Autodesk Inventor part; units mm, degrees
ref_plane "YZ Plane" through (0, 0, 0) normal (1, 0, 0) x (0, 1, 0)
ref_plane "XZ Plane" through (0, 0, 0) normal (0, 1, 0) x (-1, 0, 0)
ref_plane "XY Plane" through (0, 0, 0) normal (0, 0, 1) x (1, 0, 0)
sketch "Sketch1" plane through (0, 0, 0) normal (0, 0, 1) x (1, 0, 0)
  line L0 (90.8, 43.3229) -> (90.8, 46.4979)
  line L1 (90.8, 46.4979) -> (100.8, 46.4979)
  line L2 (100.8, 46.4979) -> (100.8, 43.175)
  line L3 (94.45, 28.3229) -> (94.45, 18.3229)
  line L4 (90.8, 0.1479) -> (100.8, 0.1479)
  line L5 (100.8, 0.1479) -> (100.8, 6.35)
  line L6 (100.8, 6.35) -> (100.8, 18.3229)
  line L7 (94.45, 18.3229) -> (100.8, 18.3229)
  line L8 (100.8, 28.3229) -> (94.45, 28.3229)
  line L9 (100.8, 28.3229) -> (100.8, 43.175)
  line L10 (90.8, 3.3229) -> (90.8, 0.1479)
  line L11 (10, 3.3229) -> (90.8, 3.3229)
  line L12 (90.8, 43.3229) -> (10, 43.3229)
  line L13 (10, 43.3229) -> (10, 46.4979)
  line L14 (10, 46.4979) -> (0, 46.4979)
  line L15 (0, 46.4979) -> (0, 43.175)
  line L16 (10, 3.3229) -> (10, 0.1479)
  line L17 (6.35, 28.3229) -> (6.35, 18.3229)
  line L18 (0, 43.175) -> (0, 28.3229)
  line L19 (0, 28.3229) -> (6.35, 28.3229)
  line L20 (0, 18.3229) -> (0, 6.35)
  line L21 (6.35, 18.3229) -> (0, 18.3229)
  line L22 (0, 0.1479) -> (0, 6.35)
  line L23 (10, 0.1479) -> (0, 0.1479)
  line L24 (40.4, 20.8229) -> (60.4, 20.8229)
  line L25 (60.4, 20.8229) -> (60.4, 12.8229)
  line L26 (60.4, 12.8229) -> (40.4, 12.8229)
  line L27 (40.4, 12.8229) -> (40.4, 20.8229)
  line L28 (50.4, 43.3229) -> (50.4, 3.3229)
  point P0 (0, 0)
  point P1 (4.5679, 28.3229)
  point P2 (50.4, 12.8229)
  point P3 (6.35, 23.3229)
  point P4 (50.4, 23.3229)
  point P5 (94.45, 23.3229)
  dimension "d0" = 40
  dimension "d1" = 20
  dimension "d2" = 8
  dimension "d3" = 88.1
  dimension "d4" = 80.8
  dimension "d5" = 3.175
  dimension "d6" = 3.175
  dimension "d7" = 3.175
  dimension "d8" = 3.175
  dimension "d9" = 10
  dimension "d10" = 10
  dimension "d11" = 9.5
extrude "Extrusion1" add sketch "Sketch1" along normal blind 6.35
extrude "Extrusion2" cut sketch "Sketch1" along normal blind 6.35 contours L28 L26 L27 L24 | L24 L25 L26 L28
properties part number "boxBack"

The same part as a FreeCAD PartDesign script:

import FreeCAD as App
import Part
import Sketcher
Q = App.Units.Quantity


def add_polygon(sketch, points):
    """Adds a closed chain of lines whose ends are joined by coincident constraints."""
    first, n = sketch.GeometryCount, len(points)
    for a, b in zip(points, points[1:] + points[:1]):
        sketch.addGeometry(Part.LineSegment(App.Vector(*a, 0), App.Vector(*b, 0)), False)
    for i in range(n):
        sketch.addConstraint(Sketcher.Constraint("Coincident", first + i, 2, first + (i + 1) % n, 1))

doc = App.newDocument("Part")
body = doc.addObject("PartDesign::Body", "Body")

sketch1 = body.newObject("Sketcher::SketchObject", "Sketch")
sketch1.AttachmentSupport = (doc.getObject("XY_Plane"), [""])
sketch1.MapMode = "FlatFace"
add_polygon(sketch1, [(90.8, 46.4979), (90.8, 43.3229), (10, 43.3229), (10, 46.4979), (0, 46.4979), (0, 28.3229), (6.35, 28.3229), (6.35, 18.3229), (0, 18.3229), (0, 0.1479), (10, 0.1479), (10, 3.3229), (90.8, 3.3229), (90.8, 0.1479), (100.8, 0.1479), (100.8, 18.3229), (94.45, 18.3229), (94.45, 28.3229), (100.8, 28.3229), (100.8, 46.4979)])
sketch1.addConstraint([
    Sketcher.Constraint("Vertical", 0),
    Sketcher.Constraint("Horizontal", 1),
    Sketcher.Constraint("Vertical", 2),
    Sketcher.Constraint("Horizontal", 3),
    Sketcher.Constraint("Vertical", 4),
    Sketcher.Constraint("Horizontal", 5),
    Sketcher.Constraint("Vertical", 6),
    Sketcher.Constraint("Horizontal", 7),
    Sketcher.Constraint("Vertical", 8),
    Sketcher.Constraint("Horizontal", 9),
    Sketcher.Constraint("Vertical", 10),
    Sketcher.Constraint("Horizontal", 11),
    Sketcher.Constraint("Vertical", 12),
    Sketcher.Constraint("Horizontal", 13),
    Sketcher.Constraint("Vertical", 14),
    Sketcher.Constraint("Horizontal", 15),
    Sketcher.Constraint("Vertical", 16),
    Sketcher.Constraint("Horizontal", 17),
    Sketcher.Constraint("Vertical", 18),
    Sketcher.Constraint("Horizontal", 19),
    Sketcher.Constraint("PointOnObject", 3, 2, -2),
    Sketcher.Constraint("PointOnObject", 7, 2, -2),
    Sketcher.Constraint("Horizontal", 9, 2, 12, 2),
    Sketcher.Constraint("Horizontal", 7, 2, 14, 2),
    Sketcher.Constraint("Horizontal", 5, 2, 16, 2),
    Sketcher.Constraint("Horizontal", 3, 2, 18, 2),
    Sketcher.Constraint("Vertical", 2, 2, 9, 2),
    Sketcher.Constraint("Vertical", 0, 2, 11, 2),
    Sketcher.Constraint("Vertical", 14, 2, 17, 2),
    Sketcher.Constraint("Equal", 9, 13),
    Sketcher.Constraint("Equal", 7, 15),
    Sketcher.Constraint("Equal", 19, 6),
    Sketcher.Constraint("Equal", 4, 8),
    Sketcher.Constraint("Equal", 2, 10),
    Sketcher.Constraint("DistanceY", 0, 2, 0, 1, Q("0.125 in")),
    Sketcher.Constraint("DistanceX", 1, 2, 1, 1, Q("3.1811 in")),
    Sketcher.Constraint("DistanceX", 3, 2, 3, 1, Q("0.3937 in")),
    Sketcher.Constraint("DistanceX", 5, 1, 5, 2, Q("0.25 in")),
    Sketcher.Constraint("DistanceY", 11, 2, 0, 2, Q("1.5748 in")),
    Sketcher.Constraint("DistanceY", -1, 1, 0, 2, Q("43.323 mm")),
])
pad1 = body.newObject("PartDesign::Pad", "Pad")
pad1.Profile = sketch1
pad1.Length = Q("0.25 in")

sketch2 = body.newObject("Sketcher::SketchObject", "Sketch001")
sketch2.AttachmentSupport = (doc.getObject("XY_Plane"), [""])
sketch2.MapMode = "FlatFace"
add_polygon(sketch2, [(40.4, 12.8229), (60.4, 12.8229), (60.4, 20.8229), (40.4, 20.8229)])
sketch2.addConstraint([
    Sketcher.Constraint("Horizontal", 0),
    Sketcher.Constraint("Vertical", 1),
    Sketcher.Constraint("Horizontal", 2),
    Sketcher.Constraint("Vertical", 3),
    Sketcher.Constraint("DistanceX", 0, 1, 0, 2, Q("0.7874 in")),
    Sketcher.Constraint("DistanceY", 1, 1, 1, 2, Q("8 mm")),
    Sketcher.Constraint("DistanceY", -1, 1, 1, 2, Q("0.8198 in")),
    Sketcher.Constraint("DistanceX", -1, 1, 0, 2, Q("60.4 mm")),
])
pocket1 = body.newObject("PartDesign::Pocket", "Pocket")
pocket1.Profile = sketch2
pocket1.Length = Q("0.25 in")
pocket1.Reversed = True

doc.recompute()
